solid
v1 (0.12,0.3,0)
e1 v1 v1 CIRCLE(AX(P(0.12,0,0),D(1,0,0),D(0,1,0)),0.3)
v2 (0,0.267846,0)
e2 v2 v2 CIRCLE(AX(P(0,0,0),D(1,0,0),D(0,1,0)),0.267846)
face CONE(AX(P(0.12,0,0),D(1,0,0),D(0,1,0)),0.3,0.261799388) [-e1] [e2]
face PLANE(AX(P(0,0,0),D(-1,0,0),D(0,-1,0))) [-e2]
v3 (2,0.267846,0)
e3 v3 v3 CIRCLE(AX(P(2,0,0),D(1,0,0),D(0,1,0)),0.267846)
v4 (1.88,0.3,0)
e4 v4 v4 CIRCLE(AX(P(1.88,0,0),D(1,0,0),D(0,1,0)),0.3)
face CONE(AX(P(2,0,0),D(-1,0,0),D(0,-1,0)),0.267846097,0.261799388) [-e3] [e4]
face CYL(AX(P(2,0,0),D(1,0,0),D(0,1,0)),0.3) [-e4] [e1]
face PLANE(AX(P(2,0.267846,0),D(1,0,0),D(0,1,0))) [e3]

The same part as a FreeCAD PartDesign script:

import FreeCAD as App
import Part
import Sketcher

V = App.Vector
Q = App.Units.Quantity

doc = App.newDocument("Part")
params = doc.addObject("Spreadsheet::Sheet", "Params")
for row, (alias, value) in enumerate([
    ("sketch1_width", "2 mm"),
    ("sketch1_width2", "1.76 mm"),
    ("revolution_angle", "360 deg"),
], start=1):
    params.set(f"A{row}", alias)
    params.set(f"B{row}", "=" + value)
    params.setAlias(f"B{row}", alias)

body = doc.addObject("PartDesign::Body", "Body")

sketch1 = body.newObject("Sketcher::SketchObject", "Sketch")
sketch1.AttachmentSupport = (doc.getObject("XY_Plane"), [""])
sketch1.MapMode = "FlatFace"
sketch1.addGeometry([
    Part.LineSegment(V(0, 0.267846, 0), V(0, 0, 0)),
    Part.LineSegment(V(0, 0, 0), V(2, 0, 0)),
    Part.LineSegment(V(2, 0, 0), V(2, 0.267846, 0)),
    Part.LineSegment(V(2, 0.267846, 0), V(1.88, 0.3, 0)),
    Part.LineSegment(V(1.88, 0.3, 0), V(0.12, 0.3, 0)),
    Part.LineSegment(V(0.12, 0.3, 0), V(0, 0.267846, 0)),
], False)
sketch1.addConstraint([
    Sketcher.Constraint("Coincident", 0, 2, 1, 1),
    Sketcher.Constraint("Coincident", 1, 2, 2, 1),
    Sketcher.Constraint("Coincident", 2, 2, 3, 1),
    Sketcher.Constraint("Coincident", 3, 2, 4, 1),
    Sketcher.Constraint("Coincident", 4, 2, 5, 1),
    Sketcher.Constraint("Coincident", 5, 2, 0, 1),
    Sketcher.Constraint("Vertical", 0),
    Sketcher.Constraint("Horizontal", 1),
    Sketcher.Constraint("Vertical", 2),
    Sketcher.Constraint("Horizontal", 4),
    Sketcher.Constraint("Coincident", 0, 2, -1, 1),
    Sketcher.Constraint("Horizontal", 2, 2, 5, 2),
    Sketcher.Constraint("Equal", 3, 5),
    Sketcher.Constraint("DistanceX", 1, 1, 1, 2, Q("2 mm")),
    Sketcher.Constraint("Angle", 3, Q("165 deg")),
    Sketcher.Constraint("DistanceX", 4, 2, 4, 1, Q("1.76 mm")),
    Sketcher.Constraint("DistanceY", -1, 1, 3, 2, Q("0.3 mm")),
])
sketch1.setExpression("Constraints[13]", "Params.sketch1_width")
sketch1.setExpression("Constraints[15]", "Params.sketch1_width2")
revolution = body.newObject("PartDesign::Revolution", "Revolution")
revolution.Profile = sketch1
revolution.ReferenceAxis = (sketch1, ["H_Axis"])
revolution.setExpression("Angle", "Params.revolution_angle")

doc.recompute()
